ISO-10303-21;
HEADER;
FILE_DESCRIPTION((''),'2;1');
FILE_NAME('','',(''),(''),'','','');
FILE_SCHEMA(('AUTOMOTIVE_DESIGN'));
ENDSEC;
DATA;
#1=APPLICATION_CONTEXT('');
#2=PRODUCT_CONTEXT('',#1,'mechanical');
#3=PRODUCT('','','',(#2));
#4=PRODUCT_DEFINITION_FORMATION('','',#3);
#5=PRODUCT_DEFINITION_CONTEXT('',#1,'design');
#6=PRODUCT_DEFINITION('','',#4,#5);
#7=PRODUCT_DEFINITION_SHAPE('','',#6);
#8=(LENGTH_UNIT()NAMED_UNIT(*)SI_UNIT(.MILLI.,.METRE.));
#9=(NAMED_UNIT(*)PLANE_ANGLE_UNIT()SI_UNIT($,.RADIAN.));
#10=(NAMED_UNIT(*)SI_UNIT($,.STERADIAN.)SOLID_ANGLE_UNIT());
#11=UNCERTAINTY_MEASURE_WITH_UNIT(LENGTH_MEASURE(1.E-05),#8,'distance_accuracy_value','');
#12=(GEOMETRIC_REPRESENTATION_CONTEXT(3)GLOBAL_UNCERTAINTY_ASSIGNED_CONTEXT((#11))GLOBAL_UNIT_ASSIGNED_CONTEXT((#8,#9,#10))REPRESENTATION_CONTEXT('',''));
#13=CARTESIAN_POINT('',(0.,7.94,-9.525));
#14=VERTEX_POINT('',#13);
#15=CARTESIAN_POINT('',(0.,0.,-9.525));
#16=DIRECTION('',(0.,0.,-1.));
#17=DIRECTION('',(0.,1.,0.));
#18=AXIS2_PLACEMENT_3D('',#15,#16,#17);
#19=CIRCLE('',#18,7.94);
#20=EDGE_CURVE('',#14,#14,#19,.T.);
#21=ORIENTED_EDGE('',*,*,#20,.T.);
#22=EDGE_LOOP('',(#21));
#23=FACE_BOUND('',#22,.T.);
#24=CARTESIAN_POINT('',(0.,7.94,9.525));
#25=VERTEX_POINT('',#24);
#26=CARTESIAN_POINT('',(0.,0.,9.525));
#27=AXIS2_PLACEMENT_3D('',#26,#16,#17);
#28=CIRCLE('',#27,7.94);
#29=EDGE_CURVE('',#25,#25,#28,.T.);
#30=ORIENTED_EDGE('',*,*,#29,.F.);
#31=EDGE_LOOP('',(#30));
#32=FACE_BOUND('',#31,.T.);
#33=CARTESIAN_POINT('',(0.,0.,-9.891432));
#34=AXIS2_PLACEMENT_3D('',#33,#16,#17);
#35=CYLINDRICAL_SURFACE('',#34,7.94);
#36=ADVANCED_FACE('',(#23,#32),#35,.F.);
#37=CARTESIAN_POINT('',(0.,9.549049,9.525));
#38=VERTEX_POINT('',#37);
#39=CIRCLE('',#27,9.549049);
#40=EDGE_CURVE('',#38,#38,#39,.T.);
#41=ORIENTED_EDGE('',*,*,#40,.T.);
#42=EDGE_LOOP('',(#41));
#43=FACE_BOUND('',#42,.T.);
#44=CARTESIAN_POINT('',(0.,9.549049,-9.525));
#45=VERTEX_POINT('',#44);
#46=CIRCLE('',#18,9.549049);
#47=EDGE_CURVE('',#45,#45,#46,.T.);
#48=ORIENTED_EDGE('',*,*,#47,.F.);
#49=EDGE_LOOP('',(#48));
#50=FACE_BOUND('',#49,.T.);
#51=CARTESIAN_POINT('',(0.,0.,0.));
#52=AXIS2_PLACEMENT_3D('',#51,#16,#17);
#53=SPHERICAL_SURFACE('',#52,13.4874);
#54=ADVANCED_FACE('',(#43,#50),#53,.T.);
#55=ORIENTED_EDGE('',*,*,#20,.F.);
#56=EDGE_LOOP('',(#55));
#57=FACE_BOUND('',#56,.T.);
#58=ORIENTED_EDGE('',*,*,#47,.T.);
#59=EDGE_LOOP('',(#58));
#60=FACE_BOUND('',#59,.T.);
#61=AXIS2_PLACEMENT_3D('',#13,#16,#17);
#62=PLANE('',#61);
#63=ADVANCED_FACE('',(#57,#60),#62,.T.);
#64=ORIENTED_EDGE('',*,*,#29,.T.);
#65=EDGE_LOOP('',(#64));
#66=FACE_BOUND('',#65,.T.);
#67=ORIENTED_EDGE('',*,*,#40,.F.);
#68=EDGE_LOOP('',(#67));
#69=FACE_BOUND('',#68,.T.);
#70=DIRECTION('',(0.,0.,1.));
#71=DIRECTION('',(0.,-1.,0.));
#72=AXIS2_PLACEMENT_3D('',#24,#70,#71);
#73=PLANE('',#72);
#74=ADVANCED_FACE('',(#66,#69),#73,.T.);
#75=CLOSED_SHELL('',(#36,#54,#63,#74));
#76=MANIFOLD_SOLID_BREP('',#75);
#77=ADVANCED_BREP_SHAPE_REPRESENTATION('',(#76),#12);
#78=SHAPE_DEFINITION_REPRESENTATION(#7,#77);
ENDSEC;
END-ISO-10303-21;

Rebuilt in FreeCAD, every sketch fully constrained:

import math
import FreeCAD as App
import Part
import Sketcher
Q = App.Units.Quantity

doc = App.newDocument("Part")
body = doc.addObject("PartDesign::Body", "Body")

sketch1 = body.newObject("Sketcher::SketchObject", "Sketch")
sketch1.AttachmentSupport = (doc.getObject("YZ_Plane"), [""])
sketch1.MapMode = "FlatFace"
sketch1.addGeometry([
    Part.LineSegment(App.Vector(7.9, 9.5, 0), App.Vector(7.9, -9.5, 0)),
    Part.LineSegment(App.Vector(7.9, -9.5, 0), App.Vector(9.5, -9.5, 0)),
    Part.ArcOfCircle(Part.Circle(App.Vector(0, 0, 0), App.Vector(0, 0, 1), 13.5), math.radians(-45), math.radians(45)),
    Part.LineSegment(App.Vector(9.5, 9.5, 0), App.Vector(7.9, 9.5, 0)),
], False)
sketch1.addConstraint([
    Sketcher.Constraint("Coincident", 0, 2, 1, 1),
    Sketcher.Constraint("Coincident", 1, 2, 2, 1),
    Sketcher.Constraint("Coincident", 2, 2, 3, 1),
    Sketcher.Constraint("Coincident", 3, 2, 0, 1),
    Sketcher.Constraint("Vertical", 0),
    Sketcher.Constraint("Horizontal", 1),
    Sketcher.Constraint("Horizontal", 3),
    Sketcher.Constraint("Coincident", 2, 3, -1, 1),
    Sketcher.Constraint("Vertical", 1, 2, 2, 2),
    Sketcher.Constraint("Radius", 2, Q("0.531 in")),
    Sketcher.Constraint("DistanceY", 0, 2, 0, 1, Q("0.75 in")),
    Sketcher.Constraint("DistanceX", 1, 1, 1, 2, 1.609049),
])
revolution = body.newObject("PartDesign::Revolution", "Revolution")
revolution.Profile = sketch1
revolution.ReferenceAxis = (sketch1, ["V_Axis"])
revolution.Angle = 360

doc.recompute()
